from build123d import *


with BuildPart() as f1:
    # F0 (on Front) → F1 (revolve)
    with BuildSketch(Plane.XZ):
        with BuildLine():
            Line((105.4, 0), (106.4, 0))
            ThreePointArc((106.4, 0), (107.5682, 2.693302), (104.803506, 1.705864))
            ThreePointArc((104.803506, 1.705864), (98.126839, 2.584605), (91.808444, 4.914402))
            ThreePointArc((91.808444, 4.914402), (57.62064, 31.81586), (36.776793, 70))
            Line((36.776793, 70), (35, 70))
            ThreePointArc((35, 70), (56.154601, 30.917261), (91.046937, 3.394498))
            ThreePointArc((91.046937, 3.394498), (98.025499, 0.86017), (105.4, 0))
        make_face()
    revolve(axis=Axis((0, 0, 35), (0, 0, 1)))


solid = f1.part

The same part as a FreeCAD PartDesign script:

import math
import FreeCAD as App
import Part
import Sketcher

doc = App.newDocument("Part")
body = doc.addObject("PartDesign::Body", "Body")

# Sketch on XZ plane
sketch1 = body.newObject("Sketcher::SketchObject", "Sketch")
sketch1.AttachmentSupport = (doc.getObject("XZ_Plane"), [""])
sketch1.MapMode = "FlatFace"
sketch1.addGeometry(Part.LineSegment(App.Vector(105.4, 0, 0), App.Vector(106.4, 0, 0)), False)
sketch1.addGeometry(Part.ArcOfCircle(Part.Circle(App.Vector(106.4, 1.6, 0), App.Vector(0, 0, 1), 1.6), math.radians(-90), math.radians(176)), False)
sketch1.addGeometry(Part.ArcOfCircle(Part.Circle(App.Vector(105.4, 32, 0), App.Vector(0, 0, 1), 30.3), math.radians(-117), math.radians(-91)), False)
sketch1.addGeometry(Part.ArcOfCircle(Part.Circle(App.Vector(140.3, 101.7, 0), App.Vector(0, 0, 1), 108.3), math.radians(-163), math.radians(-117)), False)
sketch1.addGeometry(Part.LineSegment(App.Vector(36.8, 70, 0), App.Vector(35, 70, 0)), False)
sketch1.addGeometry(Part.ArcOfCircle(Part.Circle(App.Vector(140.3, 101.7, 0), App.Vector(0, 0, 1), 110), math.radians(-163), math.radians(-117)), False)
sketch1.addGeometry(Part.ArcOfCircle(Part.Circle(App.Vector(105.4, 32, 0), App.Vector(0, 0, 1), 32), math.radians(-117), math.radians(-90)), False)
sketch1.addConstraint(Sketcher.Constraint("Tangent", 0, 2, 1, 1))
sketch1.addConstraint(Sketcher.Constraint("Coincident", 1, 2, 2, 2))
sketch1.addConstraint(Sketcher.Constraint("Tangent", 2, 1, 3, 2))
sketch1.addConstraint(Sketcher.Constraint("Coincident", 3, 1, 4, 1))
sketch1.addConstraint(Sketcher.Constraint("Coincident", 4, 2, 5, 1))
sketch1.addConstraint(Sketcher.Constraint("Tangent", 5, 2, 6, 1))
sketch1.addConstraint(Sketcher.Constraint("Tangent", 6, 2, 0, 1))
sketch1.addConstraint(Sketcher.Constraint("Horizontal", 0))
sketch1.addConstraint(Sketcher.Constraint("Horizontal", 4))
sketch1.addConstraint(Sketcher.Constraint("Coincident", 5, 3, 3, 3))
sketch1.addConstraint(Sketcher.Constraint("PointOnObject", 0, 2, -1))
sketch1.addConstraint(Sketcher.Constraint("Radius", 1, 1.6))
sketch1.addConstraint(Sketcher.Constraint("DistanceX", 0, 1, 0, 2, 1.0))
sketch1.addConstraint(Sketcher.Constraint("DistanceY", -1, 1, 3, 1, 70.0))
sketch1.addConstraint(Sketcher.Constraint("DistanceX", -1, 1, 4, 2, 35.0))
sketch1.addConstraint(Sketcher.Constraint("DistanceX", -1, 1, 1, 3, 106.4))
sketch1.addConstraint(Sketcher.Constraint("Radius", 2, 30.34198))
sketch1.addConstraint(Sketcher.Constraint("Radius", 3, 108.300003))
sketch1.addConstraint(Sketcher.Constraint("Radius", 5, 109.999998))
sketch1.addConstraint(Sketcher.Constraint("Radius", 6, 32.041994))
sketch1.addConstraint(Sketcher.Constraint("DistanceY", -1, 1, 2, 1, 4.914402))
revolution = body.newObject("PartDesign::Revolution", "Revolution")
revolution.Profile = sketch1
revolution.ReferenceAxis = (sketch1, ["V_Axis"])
revolution.Angle = 360

doc.recompute()
